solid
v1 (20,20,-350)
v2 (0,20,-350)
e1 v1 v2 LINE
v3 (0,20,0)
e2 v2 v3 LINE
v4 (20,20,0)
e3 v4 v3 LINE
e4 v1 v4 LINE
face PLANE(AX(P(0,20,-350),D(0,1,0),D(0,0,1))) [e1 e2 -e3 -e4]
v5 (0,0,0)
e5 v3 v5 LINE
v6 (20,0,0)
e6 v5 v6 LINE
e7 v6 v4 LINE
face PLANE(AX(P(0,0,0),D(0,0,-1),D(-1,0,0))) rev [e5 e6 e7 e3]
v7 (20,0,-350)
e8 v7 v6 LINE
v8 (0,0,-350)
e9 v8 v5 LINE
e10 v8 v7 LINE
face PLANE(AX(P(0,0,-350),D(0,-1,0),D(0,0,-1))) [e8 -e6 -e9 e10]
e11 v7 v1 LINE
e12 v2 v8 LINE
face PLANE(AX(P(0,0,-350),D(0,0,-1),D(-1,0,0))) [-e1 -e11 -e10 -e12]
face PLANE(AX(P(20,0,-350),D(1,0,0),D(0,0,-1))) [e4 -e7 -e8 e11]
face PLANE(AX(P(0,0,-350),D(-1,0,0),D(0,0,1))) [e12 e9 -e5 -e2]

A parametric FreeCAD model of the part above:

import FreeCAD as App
import Part
import Sketcher
from FreeCAD import Vector


def add_polygon(sketch, points):
    """Adds a closed chain of lines whose ends are joined by coincident constraints."""
    first, n = sketch.GeometryCount, len(points)
    for a, b in zip(points, points[1:] + points[:1]):
        sketch.addGeometry(Part.LineSegment(App.Vector(*a, 0), App.Vector(*b, 0)), False)
    for i in range(n):
        sketch.addConstraint(Sketcher.Constraint("Coincident", first + i, 2, first + (i + 1) % n, 1))

doc = App.newDocument("Part")
body = doc.addObject("PartDesign::Body", "Body")

sketch1 = doc.addObject("Sketcher::SketchObject", "Sketch")
body.addObject(sketch1)
sketch1.AttachmentSupport = (doc.XY_Plane, [""])
sketch1.MapMode = "FlatFace"
add_polygon(sketch1, [(0, 20), (0, 0), (20, 0), (20, 20)])
sketch1.addConstraint(Sketcher.Constraint("Vertical", 0))
sketch1.addConstraint(Sketcher.Constraint("Horizontal", 1))
sketch1.addConstraint(Sketcher.Constraint("Vertical", 2))
sketch1.addConstraint(Sketcher.Constraint("Horizontal", 3))
sketch1.addConstraint(Sketcher.Constraint("Coincident", 0, 2, -1, 1))
sketch1.addConstraint(Sketcher.Constraint("Equal", 3, 0))
sketch1.addConstraint(Sketcher.Constraint("DistanceX", 1, 1, 1, 2, 20.0))
pad1 = doc.addObject("PartDesign::Pad", "Pad")
body.addObject(pad1)
pad1.Profile = sketch1
pad1.Length = 350
pad1.Reversed = True

doc.recompute()
